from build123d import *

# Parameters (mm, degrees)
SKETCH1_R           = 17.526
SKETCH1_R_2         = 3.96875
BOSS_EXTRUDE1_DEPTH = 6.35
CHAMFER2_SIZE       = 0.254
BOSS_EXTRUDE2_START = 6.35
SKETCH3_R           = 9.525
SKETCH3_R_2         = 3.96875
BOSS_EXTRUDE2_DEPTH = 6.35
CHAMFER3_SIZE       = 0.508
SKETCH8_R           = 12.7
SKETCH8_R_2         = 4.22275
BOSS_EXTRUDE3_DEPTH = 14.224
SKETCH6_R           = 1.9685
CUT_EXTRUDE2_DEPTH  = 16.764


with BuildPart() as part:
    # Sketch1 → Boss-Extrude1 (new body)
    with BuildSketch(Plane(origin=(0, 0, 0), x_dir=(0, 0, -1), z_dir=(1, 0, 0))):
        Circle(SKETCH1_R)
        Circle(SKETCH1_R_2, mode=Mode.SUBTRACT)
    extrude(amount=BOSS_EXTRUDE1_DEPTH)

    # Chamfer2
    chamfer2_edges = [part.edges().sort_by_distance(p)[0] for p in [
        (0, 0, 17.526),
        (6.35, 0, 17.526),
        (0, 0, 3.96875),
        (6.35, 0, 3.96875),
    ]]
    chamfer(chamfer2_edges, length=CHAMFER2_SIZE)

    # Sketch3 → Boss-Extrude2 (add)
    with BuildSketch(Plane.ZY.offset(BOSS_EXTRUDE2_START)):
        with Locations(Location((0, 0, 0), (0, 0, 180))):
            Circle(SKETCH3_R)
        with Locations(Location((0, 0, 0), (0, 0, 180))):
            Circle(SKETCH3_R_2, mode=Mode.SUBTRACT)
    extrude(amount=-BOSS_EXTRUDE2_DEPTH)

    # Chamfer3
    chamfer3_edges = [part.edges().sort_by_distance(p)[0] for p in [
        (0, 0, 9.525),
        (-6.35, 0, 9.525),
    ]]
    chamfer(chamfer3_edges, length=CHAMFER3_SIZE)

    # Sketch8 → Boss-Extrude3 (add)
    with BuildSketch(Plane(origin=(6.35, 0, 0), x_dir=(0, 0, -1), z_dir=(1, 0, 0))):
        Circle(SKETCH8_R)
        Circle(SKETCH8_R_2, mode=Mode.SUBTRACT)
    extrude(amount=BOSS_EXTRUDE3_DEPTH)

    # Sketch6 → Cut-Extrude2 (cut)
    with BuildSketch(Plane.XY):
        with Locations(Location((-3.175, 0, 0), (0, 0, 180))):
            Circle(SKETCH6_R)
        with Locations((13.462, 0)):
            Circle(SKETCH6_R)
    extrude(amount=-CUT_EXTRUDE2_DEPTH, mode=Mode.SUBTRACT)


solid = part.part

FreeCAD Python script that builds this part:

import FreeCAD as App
import Part
import Sketcher
Q = App.Units.Quantity


def edges_at(feature, points):
    """Names of the edges that pass closest to the given points."""
    edges = feature.Shape.Edges
    near = lambda p: min(range(len(edges)), key=lambda i: edges[i].distToShape(Part.Vertex(*p))[0])
    return sorted({f"Edge{near(p) + 1}" for p in points})

doc = App.newDocument("Part")
body = doc.addObject("PartDesign::Body", "Body")

# Sketch on YZ plane
sketch1 = body.newObject("Sketcher::SketchObject", "Sketch")
sketch1.AttachmentSupport = (doc.getObject("YZ_Plane"), [""])
sketch1.MapMode = "FlatFace"
sketch1.addGeometry([
    Part.Circle(App.Vector(0, 0, 0), App.Vector(0, 0, 1), 17.5),
    Part.Circle(App.Vector(0, 0, 0), App.Vector(0, 0, 1), 4),
], False)
sketch1.addConstraint([
    Sketcher.Constraint("Coincident", 0, 3, -1, 1),
    Sketcher.Constraint("Coincident", 1, 3, -1, 1),
    Sketcher.Constraint("Diameter", 0, Q("1.38 in")),
    Sketcher.Constraint("Diameter", 1, Q("0.3125 in")),
])
pad1 = body.newObject("PartDesign::Pad", "Pad")
pad1.Profile = sketch1
pad1.Length = Q("0.25 in")
doc.recompute()

chamfer = body.newObject("PartDesign::Chamfer", "Chamfer")
chamfer.Base = (pad1, edges_at(pad1, [
    (0, 0, 17.526),
    (6.35, 0, 17.526),
    (0, 0, 3.969),
    (6.35, 0, 3.969),
]))
chamfer.Size = Q("0.01 in")

# Sketch on YZ plane
sketch2 = body.newObject("Sketcher::SketchObject", "Sketch001")
sketch2.AttachmentSupport = (doc.getObject("YZ_Plane"), [""])
sketch2.MapMode = "FlatFace"
sketch2.AttachmentOffset = App.Placement(App.Vector(0, 0, -0.25 * 25.4), App.Rotation())
sketch2.addGeometry([
    Part.Circle(App.Vector(0, 0, 0), App.Vector(0, 0, 1), 9.5),
    Part.Circle(App.Vector(0, 0, 0), App.Vector(0, 0, 1), 4),
], False)
sketch2.addConstraint([
    Sketcher.Constraint("Coincident", 0, 3, -1, 1),
    Sketcher.Constraint("Coincident", 1, 3, -1, 1),
    Sketcher.Constraint("Diameter", 0, Q("0.75 in")),
    Sketcher.Constraint("Diameter", 1, Q("0.3125 in")),
])
pad2 = body.newObject("PartDesign::Pad", "Pad001")
pad2.Profile = sketch2
pad2.Length = Q("0.25 in")
doc.recompute()

chamfer2 = body.newObject("PartDesign::Chamfer", "Chamfer001")
chamfer2.Base = (pad2, edges_at(pad2, [(0, 0, 9.525), (-6.35, 0, 9.525)]))
chamfer2.Size = Q("0.02 in")

# Sketch on YZ plane
sketch3 = body.newObject("Sketcher::SketchObject", "Sketch002")
sketch3.AttachmentSupport = (doc.getObject("YZ_Plane"), [""])
sketch3.MapMode = "FlatFace"
sketch3.AttachmentOffset = App.Placement(App.Vector(0, 0, 0.25 * 25.4), App.Rotation())
sketch3.addGeometry([
    Part.Circle(App.Vector(0, 0, 0), App.Vector(0, 0, 1), 12.7),
    Part.Circle(App.Vector(0, 0, 0), App.Vector(0, 0, 1), 4.2),
], False)
sketch3.addConstraint([
    Sketcher.Constraint("Coincident", 0, 3, -1, 1),
    Sketcher.Constraint("Coincident", 1, 3, -1, 1),
    Sketcher.Constraint("Diameter", 0, Q("1 in")),
    Sketcher.Constraint("Diameter", 1, Q("0.3325 in")),
])
pad3 = body.newObject("PartDesign::Pad", "Pad002")
pad3.Profile = sketch3
pad3.Length = Q("0.56 in")

# Sketch on XY plane
sketch4 = body.newObject("Sketcher::SketchObject", "Sketch003")
sketch4.AttachmentSupport = (doc.getObject("XY_Plane"), [""])
sketch4.MapMode = "FlatFace"
sketch4.addGeometry([
    Part.Circle(App.Vector(-3.2, 0, 0), App.Vector(0, 0, 1), 2),
    Part.Circle(App.Vector(13.5, 0, 0), App.Vector(0, 0, 1), 2),
], False)
sketch4.addConstraint([
    Sketcher.Constraint("Equal", 0, 1),
    Sketcher.Constraint("PointOnObject", 0, 3, -1),
    Sketcher.Constraint("PointOnObject", 1, 3, -1),
    Sketcher.Constraint("Diameter", 0, Q("0.155 in")),
    Sketcher.Constraint("DistanceX", -1, 1, 1, 3, Q("0.53 in")),
    Sketcher.Constraint("DistanceX", 0, 3, -1, 1, Q("0.125 in")),
])
pocket1 = body.newObject("PartDesign::Pocket", "Pocket")
pocket1.Profile = sketch4
pocket1.Length = Q("0.66 in")

doc.recompute()
